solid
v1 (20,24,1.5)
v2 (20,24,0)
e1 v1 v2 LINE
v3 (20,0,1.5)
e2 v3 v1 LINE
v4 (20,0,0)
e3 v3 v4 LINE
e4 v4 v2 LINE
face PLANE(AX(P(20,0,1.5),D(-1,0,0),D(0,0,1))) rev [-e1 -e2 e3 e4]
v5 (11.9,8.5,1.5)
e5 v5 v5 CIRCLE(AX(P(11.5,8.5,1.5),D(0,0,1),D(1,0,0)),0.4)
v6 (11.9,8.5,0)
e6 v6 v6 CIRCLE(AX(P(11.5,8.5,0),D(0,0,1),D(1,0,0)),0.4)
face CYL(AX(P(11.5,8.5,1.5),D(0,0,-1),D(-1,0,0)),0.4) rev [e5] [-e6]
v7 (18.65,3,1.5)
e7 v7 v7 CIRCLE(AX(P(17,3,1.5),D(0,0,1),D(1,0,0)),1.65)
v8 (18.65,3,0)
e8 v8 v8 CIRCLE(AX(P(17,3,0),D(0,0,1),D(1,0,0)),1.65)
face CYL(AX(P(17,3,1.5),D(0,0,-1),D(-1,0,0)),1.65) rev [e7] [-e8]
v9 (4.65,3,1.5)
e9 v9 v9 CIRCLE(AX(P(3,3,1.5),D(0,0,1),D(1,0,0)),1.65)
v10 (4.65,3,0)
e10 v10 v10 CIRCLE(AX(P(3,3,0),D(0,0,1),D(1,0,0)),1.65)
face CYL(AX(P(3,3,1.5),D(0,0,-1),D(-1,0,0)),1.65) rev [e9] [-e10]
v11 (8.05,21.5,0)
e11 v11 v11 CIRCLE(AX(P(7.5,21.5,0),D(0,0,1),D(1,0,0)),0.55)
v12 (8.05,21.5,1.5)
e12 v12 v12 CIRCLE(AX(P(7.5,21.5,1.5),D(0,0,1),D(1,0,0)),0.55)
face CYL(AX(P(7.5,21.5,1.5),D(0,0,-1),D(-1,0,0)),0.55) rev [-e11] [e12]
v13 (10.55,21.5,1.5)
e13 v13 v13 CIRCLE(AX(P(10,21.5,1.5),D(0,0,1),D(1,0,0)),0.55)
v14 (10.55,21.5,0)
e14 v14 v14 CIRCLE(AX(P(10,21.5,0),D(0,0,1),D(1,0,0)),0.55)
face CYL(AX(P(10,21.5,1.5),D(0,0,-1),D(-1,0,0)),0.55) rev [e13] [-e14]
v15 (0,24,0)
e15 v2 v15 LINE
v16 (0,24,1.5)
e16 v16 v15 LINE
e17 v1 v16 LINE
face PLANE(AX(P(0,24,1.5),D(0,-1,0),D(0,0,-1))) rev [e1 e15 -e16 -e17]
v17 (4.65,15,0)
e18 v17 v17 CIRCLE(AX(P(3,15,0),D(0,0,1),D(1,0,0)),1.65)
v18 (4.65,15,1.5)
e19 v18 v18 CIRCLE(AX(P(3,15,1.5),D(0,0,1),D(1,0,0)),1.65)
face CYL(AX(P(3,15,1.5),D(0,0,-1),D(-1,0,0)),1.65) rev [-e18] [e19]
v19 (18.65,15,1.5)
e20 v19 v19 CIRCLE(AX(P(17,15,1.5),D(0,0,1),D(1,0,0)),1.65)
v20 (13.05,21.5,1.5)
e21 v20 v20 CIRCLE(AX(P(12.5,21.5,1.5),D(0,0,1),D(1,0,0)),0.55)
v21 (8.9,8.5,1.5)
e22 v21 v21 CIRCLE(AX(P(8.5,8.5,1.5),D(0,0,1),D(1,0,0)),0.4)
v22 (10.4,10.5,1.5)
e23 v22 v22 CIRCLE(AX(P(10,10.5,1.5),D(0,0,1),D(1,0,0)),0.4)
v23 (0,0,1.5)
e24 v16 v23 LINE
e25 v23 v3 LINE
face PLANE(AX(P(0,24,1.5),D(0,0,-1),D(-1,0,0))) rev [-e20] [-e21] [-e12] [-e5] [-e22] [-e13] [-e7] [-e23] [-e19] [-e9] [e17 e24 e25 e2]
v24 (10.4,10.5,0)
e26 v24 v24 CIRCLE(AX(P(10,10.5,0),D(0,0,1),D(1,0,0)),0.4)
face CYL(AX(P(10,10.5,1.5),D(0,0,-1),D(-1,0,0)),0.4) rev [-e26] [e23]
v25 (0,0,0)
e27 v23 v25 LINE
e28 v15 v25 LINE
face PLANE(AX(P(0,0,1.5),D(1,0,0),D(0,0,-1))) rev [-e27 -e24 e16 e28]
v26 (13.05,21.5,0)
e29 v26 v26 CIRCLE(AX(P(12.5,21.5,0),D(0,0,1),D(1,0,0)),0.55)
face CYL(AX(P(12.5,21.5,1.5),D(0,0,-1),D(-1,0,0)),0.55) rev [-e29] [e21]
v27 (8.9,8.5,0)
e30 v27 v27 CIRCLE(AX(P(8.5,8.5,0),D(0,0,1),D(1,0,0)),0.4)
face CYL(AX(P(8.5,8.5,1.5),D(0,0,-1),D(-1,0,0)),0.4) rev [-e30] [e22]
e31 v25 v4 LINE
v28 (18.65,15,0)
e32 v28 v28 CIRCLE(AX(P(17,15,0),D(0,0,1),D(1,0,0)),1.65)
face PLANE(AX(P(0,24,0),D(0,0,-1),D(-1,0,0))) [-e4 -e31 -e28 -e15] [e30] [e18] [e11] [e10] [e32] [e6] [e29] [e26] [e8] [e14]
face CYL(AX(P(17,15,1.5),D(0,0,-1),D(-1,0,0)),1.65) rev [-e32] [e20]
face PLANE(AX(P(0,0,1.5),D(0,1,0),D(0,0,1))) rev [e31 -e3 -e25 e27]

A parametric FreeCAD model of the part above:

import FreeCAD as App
import Part
import Sketcher
from FreeCAD import Vector
Q = App.Units.Quantity


def add_polygon(sketch, points):
    """Adds a closed chain of lines whose ends are joined by coincident constraints."""
    first, n = sketch.GeometryCount, len(points)
    for a, b in zip(points, points[1:] + points[:1]):
        sketch.addGeometry(Part.LineSegment(App.Vector(*a, 0), App.Vector(*b, 0)), False)
    for i in range(n):
        sketch.addConstraint(Sketcher.Constraint("Coincident", first + i, 2, first + (i + 1) % n, 1))

doc = App.newDocument("Part")
body = doc.addObject("PartDesign::Body", "Body")

# Sketch on XY plane
sketch1 = doc.addObject("Sketcher::SketchObject", "Sketch")
body.addObject(sketch1)
sketch1.AttachmentSupport = (doc.XY_Plane, [""])
sketch1.MapMode = "FlatFace"
add_polygon(sketch1, [(0, 24), (0, 0), (20, 0), (20, 24)])  # lines 0-3
sketch1.addGeometry(Part.Circle(Vector(3, 3, 0), Vector(0, 0, 1), 1.65), False)  # 4
sketch1.addGeometry(Part.Circle(Vector(8.5, 8.5, 0), Vector(0, 0, 1), 0.4), False)  # 5
sketch1.addGeometry(Part.Circle(Vector(17, 3, 0), Vector(0, 0, 1), 1.65), False)  # 6
sketch1.addGeometry(Part.Circle(Vector(11.5, 8.5, 0), Vector(0, 0, 1), 0.4), False)  # 7
sketch1.addGeometry(Part.Circle(Vector(10, 10.5, 0), Vector(0, 0, 1), 0.4), False)  # 8
sketch1.addGeometry(Part.Circle(Vector(3, 15, 0), Vector(0, 0, 1), 1.65), False)  # 9
sketch1.addGeometry(Part.Circle(Vector(7.5, 21.5, 0), Vector(0, 0, 1), 0.55), False)  # 10
sketch1.addGeometry(Part.Circle(Vector(17, 15, 0), Vector(0, 0, 1), 1.65), False)  # 11
sketch1.addGeometry(Part.Circle(Vector(10, 21.5, 0), Vector(0, 0, 1), 0.55), False)  # 12
sketch1.addGeometry(Part.Circle(Vector(12.5, 21.5, 0), Vector(0, 0, 1), 0.55), False)  # 13
sketch1.addConstraint([
    Sketcher.Constraint("Vertical", 0),
    Sketcher.Constraint("Horizontal", 1),
    Sketcher.Constraint("Vertical", 2),
    Sketcher.Constraint("Horizontal", 3),
    Sketcher.Constraint("Coincident", 0, 2, -1, 1),
    Sketcher.Constraint("Equal", 4, 6),
    Sketcher.Constraint("Equal", 5, 7),
    Sketcher.Constraint("Equal", 7, 8),
    Sketcher.Constraint("Equal", 6, 9),
    Sketcher.Constraint("Equal", 9, 11),
    Sketcher.Constraint("Equal", 10, 12),
    Sketcher.Constraint("Equal", 12, 13),
    Sketcher.Constraint("Horizontal", 4, 3, 6, 3),
    Sketcher.Constraint("Horizontal", 5, 3, 7, 3),
    Sketcher.Constraint("Horizontal", 9, 3, 11, 3),
    Sketcher.Constraint("Horizontal", 10, 3, 12, 3),
    Sketcher.Constraint("Horizontal", 12, 3, 13, 3),
    Sketcher.Constraint("Vertical", 4, 3, 9, 3),
    Sketcher.Constraint("Vertical", 6, 3, 11, 3),
    Sketcher.Constraint("Vertical", 8, 3, 12, 3),
    Sketcher.Constraint("Diameter", 4, Q("3.3 mm")),
    Sketcher.Constraint("Diameter", 5, Q("0.8 mm")),
    Sketcher.Constraint("Diameter", 10, Q("1.1 mm")),
    Sketcher.Constraint("DistanceX", 1, 1, 1, 2, Q("20 mm")),
    Sketcher.Constraint("DistanceY", 0, 2, 0, 1, Q("24 mm")),
    Sketcher.Constraint("DistanceX", -1, 1, 4, 3, Q("3 mm")),
    Sketcher.Constraint("DistanceY", -1, 1, 4, 3, Q("3 mm")),
    Sketcher.Constraint("DistanceX", -1, 1, 6, 3, Q("17 mm")),
    Sketcher.Constraint("DistanceX", -1, 1, 8, 3, Q("10 mm")),
    Sketcher.Constraint("DistanceY", -1, 1, 9, 3, Q("15 mm")),
    Sketcher.Constraint("DistanceX", 5, 3, 7, 3, Q("3 mm")),
    Sketcher.Constraint("DistanceY", 5, 3, 8, 3, Q("2 mm")),
    Sketcher.Constraint("DistanceY", 8, 3, 10, 3, Q("11 mm")),
    Sketcher.Constraint("DistanceX", 10, 3, 5, 3, Q("1 mm")),
    Sketcher.Constraint("DistanceX", 10, 3, 13, 3, Q("5 mm")),
    Sketcher.Constraint("DistanceX", -1, 1, 5, 3, Q("8.5 mm")),
    Sketcher.Constraint("DistanceY", -1, 1, 5, 3, Q("8.5 mm")),
])
pad1 = doc.addObject("PartDesign::Pad", "Pad")
body.addObject(pad1)
pad1.Profile = sketch1
pad1.Length = 1.5

doc.recompute()
